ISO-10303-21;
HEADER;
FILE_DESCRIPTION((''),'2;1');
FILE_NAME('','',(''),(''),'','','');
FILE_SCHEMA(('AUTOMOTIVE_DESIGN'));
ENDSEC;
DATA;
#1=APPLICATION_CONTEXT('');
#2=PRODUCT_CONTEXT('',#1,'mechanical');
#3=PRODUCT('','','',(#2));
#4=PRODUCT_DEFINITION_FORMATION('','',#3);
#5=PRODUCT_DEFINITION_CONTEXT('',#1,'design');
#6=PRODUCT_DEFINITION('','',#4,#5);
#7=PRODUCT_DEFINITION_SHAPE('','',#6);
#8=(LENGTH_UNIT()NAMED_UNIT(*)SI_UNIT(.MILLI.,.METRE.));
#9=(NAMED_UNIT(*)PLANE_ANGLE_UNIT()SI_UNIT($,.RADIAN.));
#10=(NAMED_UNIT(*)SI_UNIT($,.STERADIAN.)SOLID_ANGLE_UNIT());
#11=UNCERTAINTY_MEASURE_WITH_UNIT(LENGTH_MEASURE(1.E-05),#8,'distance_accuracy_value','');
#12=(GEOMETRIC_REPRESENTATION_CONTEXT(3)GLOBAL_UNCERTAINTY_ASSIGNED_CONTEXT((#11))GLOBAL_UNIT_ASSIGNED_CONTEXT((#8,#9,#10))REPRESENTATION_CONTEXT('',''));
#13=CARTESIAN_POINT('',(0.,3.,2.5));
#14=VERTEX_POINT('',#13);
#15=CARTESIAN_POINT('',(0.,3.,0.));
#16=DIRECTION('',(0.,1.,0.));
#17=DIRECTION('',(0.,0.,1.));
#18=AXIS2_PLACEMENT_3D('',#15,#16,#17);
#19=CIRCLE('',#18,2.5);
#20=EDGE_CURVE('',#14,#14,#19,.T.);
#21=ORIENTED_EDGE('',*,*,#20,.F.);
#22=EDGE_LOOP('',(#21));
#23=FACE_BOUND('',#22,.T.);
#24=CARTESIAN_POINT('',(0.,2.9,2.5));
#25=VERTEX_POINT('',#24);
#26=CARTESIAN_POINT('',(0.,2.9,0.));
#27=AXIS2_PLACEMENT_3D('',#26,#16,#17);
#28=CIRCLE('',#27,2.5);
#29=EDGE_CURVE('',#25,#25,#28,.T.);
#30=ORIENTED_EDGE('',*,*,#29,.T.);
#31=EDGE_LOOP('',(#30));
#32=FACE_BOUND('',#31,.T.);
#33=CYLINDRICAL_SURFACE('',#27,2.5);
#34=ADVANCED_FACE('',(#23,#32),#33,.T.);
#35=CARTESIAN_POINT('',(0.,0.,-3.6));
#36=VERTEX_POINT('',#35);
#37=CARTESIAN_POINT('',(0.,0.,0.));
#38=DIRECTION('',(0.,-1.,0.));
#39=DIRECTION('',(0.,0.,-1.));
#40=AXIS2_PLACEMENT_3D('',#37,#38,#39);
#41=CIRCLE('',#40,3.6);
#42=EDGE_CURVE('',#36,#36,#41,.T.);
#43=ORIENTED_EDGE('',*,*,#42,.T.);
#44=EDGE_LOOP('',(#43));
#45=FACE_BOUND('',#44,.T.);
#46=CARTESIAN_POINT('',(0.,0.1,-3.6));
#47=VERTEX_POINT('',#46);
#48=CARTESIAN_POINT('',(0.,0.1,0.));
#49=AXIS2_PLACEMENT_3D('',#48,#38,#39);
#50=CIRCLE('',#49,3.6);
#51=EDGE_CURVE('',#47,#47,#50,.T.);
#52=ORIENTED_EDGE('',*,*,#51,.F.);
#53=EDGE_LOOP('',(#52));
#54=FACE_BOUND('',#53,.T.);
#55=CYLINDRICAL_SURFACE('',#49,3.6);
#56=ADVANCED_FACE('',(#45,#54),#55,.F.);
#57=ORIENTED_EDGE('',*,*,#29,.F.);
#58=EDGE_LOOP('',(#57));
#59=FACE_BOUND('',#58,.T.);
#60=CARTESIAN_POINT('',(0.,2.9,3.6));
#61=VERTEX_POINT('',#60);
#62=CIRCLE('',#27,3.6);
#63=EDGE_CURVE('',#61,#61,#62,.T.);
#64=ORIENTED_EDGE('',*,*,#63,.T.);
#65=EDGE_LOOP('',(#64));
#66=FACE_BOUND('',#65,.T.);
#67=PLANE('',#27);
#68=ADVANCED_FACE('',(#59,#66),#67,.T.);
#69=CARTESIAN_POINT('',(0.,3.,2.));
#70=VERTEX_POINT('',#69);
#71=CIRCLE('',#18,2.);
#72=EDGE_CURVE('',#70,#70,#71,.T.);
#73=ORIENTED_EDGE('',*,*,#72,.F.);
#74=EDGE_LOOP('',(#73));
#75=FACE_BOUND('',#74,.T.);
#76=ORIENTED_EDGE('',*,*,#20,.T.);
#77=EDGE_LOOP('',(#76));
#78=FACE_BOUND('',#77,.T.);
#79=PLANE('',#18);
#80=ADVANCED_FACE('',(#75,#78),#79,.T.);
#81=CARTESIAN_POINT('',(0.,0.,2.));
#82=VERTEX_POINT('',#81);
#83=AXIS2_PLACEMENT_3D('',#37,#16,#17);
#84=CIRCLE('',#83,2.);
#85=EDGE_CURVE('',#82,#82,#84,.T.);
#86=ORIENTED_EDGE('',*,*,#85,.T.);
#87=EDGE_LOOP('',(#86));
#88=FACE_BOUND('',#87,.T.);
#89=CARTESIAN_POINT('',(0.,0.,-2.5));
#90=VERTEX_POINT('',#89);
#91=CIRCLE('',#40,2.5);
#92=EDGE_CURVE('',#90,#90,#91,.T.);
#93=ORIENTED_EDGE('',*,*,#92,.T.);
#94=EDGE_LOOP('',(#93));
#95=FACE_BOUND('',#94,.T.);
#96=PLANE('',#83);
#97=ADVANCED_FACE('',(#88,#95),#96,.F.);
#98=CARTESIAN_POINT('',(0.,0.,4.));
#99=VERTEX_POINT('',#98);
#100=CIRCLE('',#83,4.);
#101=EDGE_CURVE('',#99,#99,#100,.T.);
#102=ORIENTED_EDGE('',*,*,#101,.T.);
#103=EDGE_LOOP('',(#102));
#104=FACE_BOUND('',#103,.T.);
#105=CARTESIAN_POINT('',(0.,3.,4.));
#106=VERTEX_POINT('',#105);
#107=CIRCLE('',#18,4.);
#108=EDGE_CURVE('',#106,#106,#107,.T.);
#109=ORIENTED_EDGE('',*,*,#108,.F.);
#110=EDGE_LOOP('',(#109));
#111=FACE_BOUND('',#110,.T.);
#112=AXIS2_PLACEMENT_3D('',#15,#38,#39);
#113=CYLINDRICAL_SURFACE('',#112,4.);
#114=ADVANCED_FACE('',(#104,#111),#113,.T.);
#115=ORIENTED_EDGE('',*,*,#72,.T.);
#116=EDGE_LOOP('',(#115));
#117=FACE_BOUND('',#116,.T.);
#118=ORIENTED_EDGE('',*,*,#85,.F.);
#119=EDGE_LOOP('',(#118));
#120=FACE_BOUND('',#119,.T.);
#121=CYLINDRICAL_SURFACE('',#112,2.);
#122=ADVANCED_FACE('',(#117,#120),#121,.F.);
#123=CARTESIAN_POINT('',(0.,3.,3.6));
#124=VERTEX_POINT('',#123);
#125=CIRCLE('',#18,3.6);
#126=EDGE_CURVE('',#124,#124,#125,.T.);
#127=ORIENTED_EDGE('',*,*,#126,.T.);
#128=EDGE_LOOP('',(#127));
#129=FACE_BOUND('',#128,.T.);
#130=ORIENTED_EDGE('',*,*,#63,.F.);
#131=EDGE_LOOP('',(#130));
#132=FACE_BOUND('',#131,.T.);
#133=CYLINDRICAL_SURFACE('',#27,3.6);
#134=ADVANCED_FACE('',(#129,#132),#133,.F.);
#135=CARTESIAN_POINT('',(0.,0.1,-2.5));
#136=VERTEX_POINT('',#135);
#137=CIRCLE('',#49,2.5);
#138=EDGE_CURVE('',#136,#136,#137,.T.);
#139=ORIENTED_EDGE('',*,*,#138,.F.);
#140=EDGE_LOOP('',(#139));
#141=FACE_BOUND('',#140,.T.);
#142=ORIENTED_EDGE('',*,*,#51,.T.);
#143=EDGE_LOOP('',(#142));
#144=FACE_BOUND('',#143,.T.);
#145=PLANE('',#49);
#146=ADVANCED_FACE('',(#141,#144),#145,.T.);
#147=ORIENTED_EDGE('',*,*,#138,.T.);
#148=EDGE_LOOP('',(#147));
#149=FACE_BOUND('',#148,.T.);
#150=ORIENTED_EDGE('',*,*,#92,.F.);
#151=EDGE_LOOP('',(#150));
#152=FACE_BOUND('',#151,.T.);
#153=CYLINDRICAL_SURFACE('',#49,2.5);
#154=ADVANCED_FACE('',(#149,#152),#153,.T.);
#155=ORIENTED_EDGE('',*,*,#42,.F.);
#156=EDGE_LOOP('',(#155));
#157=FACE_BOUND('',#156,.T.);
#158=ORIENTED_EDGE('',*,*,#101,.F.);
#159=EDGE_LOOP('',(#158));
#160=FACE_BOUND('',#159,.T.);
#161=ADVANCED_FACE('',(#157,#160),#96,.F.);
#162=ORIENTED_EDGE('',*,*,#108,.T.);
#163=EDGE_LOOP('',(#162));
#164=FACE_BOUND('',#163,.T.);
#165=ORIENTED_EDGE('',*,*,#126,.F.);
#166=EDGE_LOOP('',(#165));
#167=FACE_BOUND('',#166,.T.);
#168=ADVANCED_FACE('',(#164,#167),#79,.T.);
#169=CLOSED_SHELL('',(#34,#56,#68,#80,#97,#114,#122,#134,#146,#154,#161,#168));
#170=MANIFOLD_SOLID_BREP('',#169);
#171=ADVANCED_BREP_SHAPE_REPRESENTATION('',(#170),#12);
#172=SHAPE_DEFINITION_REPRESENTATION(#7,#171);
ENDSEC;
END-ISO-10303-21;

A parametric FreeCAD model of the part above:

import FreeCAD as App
import Part
import Sketcher

V = App.Vector
Q = App.Units.Quantity

doc = App.newDocument("Part")
body = doc.addObject("PartDesign::Body", "Body")

# Sketch on XZ plane
sketch1 = body.newObject("Sketcher::SketchObject", "Sketch")
sketch1.AttachmentSupport = (doc.getObject("XZ_Plane"), [""])
sketch1.MapMode = "FlatFace"
sketch1.addGeometry([
    Part.Circle(V(0, 0, 0), V(0, 0, 1), 4),
    Part.Circle(V(0, 0, 0), V(0, 0, 1), 2),
], False)
sketch1.addConstraint([
    Sketcher.Constraint("Coincident", 0, 3, -1, 1),
    Sketcher.Constraint("Coincident", 1, 3, -1, 1),
    Sketcher.Constraint("Diameter", 0, Q("8 mm")),
    Sketcher.Constraint("Diameter", 1, Q("4 mm")),
])
pad1 = body.newObject("PartDesign::Pad", "Pad")
pad1.Profile = sketch1
pad1.Length = 3
pad1.Reversed = True

# Sketch on XZ plane
sketch2 = body.newObject("Sketcher::SketchObject", "Sketch001")
sketch2.AttachmentSupport = (doc.getObject("XZ_Plane"), [""])
sketch2.MapMode = "FlatFace"
sketch2.AttachmentOffset = App.Placement(V(0, 0, -3), App.Rotation())
sketch2.addGeometry([
    Part.Circle(V(0, 0, 0), V(0, 0, 1), 3.6),
    Part.Circle(V(0, 0, 0), V(0, 0, 1), 2.5),
], False)
sketch2.addConstraint([
    Sketcher.Constraint("Coincident", 0, 3, -1, 1),
    Sketcher.Constraint("Coincident", 1, 3, -1, 1),
    Sketcher.Constraint("Diameter", 1, Q("5 mm")),
    Sketcher.Constraint("Diameter", 0, Q("7.2 mm")),
])
pocket1 = body.newObject("PartDesign::Pocket", "Pocket")
pocket1.Profile = sketch2
pocket1.Length = 0.1
pocket1.Reversed = True

# Sketch on XZ plane
sketch3 = body.newObject("Sketcher::SketchObject", "Sketch002")
sketch3.AttachmentSupport = (doc.getObject("XZ_Plane"), [""])
sketch3.MapMode = "FlatFace"
sketch3.addGeometry([
    Part.Circle(V(0, 0, 0), V(0, 0, 1), 3.6),
    Part.Circle(V(0, 0, 0), V(0, 0, 1), 2.5),
], False)
sketch3.addConstraint([
    Sketcher.Constraint("Coincident", 0, 3, -1, 1),
    Sketcher.Constraint("Coincident", 1, 3, -1, 1),
    Sketcher.Constraint("Diameter", 1, Q("5 mm")),
    Sketcher.Constraint("Diameter", 0, Q("7.2 mm")),
])
pocket2 = body.newObject("PartDesign::Pocket", "Pocket001")
pocket2.Profile = sketch3
pocket2.Length = 0.1

doc.recompute()
